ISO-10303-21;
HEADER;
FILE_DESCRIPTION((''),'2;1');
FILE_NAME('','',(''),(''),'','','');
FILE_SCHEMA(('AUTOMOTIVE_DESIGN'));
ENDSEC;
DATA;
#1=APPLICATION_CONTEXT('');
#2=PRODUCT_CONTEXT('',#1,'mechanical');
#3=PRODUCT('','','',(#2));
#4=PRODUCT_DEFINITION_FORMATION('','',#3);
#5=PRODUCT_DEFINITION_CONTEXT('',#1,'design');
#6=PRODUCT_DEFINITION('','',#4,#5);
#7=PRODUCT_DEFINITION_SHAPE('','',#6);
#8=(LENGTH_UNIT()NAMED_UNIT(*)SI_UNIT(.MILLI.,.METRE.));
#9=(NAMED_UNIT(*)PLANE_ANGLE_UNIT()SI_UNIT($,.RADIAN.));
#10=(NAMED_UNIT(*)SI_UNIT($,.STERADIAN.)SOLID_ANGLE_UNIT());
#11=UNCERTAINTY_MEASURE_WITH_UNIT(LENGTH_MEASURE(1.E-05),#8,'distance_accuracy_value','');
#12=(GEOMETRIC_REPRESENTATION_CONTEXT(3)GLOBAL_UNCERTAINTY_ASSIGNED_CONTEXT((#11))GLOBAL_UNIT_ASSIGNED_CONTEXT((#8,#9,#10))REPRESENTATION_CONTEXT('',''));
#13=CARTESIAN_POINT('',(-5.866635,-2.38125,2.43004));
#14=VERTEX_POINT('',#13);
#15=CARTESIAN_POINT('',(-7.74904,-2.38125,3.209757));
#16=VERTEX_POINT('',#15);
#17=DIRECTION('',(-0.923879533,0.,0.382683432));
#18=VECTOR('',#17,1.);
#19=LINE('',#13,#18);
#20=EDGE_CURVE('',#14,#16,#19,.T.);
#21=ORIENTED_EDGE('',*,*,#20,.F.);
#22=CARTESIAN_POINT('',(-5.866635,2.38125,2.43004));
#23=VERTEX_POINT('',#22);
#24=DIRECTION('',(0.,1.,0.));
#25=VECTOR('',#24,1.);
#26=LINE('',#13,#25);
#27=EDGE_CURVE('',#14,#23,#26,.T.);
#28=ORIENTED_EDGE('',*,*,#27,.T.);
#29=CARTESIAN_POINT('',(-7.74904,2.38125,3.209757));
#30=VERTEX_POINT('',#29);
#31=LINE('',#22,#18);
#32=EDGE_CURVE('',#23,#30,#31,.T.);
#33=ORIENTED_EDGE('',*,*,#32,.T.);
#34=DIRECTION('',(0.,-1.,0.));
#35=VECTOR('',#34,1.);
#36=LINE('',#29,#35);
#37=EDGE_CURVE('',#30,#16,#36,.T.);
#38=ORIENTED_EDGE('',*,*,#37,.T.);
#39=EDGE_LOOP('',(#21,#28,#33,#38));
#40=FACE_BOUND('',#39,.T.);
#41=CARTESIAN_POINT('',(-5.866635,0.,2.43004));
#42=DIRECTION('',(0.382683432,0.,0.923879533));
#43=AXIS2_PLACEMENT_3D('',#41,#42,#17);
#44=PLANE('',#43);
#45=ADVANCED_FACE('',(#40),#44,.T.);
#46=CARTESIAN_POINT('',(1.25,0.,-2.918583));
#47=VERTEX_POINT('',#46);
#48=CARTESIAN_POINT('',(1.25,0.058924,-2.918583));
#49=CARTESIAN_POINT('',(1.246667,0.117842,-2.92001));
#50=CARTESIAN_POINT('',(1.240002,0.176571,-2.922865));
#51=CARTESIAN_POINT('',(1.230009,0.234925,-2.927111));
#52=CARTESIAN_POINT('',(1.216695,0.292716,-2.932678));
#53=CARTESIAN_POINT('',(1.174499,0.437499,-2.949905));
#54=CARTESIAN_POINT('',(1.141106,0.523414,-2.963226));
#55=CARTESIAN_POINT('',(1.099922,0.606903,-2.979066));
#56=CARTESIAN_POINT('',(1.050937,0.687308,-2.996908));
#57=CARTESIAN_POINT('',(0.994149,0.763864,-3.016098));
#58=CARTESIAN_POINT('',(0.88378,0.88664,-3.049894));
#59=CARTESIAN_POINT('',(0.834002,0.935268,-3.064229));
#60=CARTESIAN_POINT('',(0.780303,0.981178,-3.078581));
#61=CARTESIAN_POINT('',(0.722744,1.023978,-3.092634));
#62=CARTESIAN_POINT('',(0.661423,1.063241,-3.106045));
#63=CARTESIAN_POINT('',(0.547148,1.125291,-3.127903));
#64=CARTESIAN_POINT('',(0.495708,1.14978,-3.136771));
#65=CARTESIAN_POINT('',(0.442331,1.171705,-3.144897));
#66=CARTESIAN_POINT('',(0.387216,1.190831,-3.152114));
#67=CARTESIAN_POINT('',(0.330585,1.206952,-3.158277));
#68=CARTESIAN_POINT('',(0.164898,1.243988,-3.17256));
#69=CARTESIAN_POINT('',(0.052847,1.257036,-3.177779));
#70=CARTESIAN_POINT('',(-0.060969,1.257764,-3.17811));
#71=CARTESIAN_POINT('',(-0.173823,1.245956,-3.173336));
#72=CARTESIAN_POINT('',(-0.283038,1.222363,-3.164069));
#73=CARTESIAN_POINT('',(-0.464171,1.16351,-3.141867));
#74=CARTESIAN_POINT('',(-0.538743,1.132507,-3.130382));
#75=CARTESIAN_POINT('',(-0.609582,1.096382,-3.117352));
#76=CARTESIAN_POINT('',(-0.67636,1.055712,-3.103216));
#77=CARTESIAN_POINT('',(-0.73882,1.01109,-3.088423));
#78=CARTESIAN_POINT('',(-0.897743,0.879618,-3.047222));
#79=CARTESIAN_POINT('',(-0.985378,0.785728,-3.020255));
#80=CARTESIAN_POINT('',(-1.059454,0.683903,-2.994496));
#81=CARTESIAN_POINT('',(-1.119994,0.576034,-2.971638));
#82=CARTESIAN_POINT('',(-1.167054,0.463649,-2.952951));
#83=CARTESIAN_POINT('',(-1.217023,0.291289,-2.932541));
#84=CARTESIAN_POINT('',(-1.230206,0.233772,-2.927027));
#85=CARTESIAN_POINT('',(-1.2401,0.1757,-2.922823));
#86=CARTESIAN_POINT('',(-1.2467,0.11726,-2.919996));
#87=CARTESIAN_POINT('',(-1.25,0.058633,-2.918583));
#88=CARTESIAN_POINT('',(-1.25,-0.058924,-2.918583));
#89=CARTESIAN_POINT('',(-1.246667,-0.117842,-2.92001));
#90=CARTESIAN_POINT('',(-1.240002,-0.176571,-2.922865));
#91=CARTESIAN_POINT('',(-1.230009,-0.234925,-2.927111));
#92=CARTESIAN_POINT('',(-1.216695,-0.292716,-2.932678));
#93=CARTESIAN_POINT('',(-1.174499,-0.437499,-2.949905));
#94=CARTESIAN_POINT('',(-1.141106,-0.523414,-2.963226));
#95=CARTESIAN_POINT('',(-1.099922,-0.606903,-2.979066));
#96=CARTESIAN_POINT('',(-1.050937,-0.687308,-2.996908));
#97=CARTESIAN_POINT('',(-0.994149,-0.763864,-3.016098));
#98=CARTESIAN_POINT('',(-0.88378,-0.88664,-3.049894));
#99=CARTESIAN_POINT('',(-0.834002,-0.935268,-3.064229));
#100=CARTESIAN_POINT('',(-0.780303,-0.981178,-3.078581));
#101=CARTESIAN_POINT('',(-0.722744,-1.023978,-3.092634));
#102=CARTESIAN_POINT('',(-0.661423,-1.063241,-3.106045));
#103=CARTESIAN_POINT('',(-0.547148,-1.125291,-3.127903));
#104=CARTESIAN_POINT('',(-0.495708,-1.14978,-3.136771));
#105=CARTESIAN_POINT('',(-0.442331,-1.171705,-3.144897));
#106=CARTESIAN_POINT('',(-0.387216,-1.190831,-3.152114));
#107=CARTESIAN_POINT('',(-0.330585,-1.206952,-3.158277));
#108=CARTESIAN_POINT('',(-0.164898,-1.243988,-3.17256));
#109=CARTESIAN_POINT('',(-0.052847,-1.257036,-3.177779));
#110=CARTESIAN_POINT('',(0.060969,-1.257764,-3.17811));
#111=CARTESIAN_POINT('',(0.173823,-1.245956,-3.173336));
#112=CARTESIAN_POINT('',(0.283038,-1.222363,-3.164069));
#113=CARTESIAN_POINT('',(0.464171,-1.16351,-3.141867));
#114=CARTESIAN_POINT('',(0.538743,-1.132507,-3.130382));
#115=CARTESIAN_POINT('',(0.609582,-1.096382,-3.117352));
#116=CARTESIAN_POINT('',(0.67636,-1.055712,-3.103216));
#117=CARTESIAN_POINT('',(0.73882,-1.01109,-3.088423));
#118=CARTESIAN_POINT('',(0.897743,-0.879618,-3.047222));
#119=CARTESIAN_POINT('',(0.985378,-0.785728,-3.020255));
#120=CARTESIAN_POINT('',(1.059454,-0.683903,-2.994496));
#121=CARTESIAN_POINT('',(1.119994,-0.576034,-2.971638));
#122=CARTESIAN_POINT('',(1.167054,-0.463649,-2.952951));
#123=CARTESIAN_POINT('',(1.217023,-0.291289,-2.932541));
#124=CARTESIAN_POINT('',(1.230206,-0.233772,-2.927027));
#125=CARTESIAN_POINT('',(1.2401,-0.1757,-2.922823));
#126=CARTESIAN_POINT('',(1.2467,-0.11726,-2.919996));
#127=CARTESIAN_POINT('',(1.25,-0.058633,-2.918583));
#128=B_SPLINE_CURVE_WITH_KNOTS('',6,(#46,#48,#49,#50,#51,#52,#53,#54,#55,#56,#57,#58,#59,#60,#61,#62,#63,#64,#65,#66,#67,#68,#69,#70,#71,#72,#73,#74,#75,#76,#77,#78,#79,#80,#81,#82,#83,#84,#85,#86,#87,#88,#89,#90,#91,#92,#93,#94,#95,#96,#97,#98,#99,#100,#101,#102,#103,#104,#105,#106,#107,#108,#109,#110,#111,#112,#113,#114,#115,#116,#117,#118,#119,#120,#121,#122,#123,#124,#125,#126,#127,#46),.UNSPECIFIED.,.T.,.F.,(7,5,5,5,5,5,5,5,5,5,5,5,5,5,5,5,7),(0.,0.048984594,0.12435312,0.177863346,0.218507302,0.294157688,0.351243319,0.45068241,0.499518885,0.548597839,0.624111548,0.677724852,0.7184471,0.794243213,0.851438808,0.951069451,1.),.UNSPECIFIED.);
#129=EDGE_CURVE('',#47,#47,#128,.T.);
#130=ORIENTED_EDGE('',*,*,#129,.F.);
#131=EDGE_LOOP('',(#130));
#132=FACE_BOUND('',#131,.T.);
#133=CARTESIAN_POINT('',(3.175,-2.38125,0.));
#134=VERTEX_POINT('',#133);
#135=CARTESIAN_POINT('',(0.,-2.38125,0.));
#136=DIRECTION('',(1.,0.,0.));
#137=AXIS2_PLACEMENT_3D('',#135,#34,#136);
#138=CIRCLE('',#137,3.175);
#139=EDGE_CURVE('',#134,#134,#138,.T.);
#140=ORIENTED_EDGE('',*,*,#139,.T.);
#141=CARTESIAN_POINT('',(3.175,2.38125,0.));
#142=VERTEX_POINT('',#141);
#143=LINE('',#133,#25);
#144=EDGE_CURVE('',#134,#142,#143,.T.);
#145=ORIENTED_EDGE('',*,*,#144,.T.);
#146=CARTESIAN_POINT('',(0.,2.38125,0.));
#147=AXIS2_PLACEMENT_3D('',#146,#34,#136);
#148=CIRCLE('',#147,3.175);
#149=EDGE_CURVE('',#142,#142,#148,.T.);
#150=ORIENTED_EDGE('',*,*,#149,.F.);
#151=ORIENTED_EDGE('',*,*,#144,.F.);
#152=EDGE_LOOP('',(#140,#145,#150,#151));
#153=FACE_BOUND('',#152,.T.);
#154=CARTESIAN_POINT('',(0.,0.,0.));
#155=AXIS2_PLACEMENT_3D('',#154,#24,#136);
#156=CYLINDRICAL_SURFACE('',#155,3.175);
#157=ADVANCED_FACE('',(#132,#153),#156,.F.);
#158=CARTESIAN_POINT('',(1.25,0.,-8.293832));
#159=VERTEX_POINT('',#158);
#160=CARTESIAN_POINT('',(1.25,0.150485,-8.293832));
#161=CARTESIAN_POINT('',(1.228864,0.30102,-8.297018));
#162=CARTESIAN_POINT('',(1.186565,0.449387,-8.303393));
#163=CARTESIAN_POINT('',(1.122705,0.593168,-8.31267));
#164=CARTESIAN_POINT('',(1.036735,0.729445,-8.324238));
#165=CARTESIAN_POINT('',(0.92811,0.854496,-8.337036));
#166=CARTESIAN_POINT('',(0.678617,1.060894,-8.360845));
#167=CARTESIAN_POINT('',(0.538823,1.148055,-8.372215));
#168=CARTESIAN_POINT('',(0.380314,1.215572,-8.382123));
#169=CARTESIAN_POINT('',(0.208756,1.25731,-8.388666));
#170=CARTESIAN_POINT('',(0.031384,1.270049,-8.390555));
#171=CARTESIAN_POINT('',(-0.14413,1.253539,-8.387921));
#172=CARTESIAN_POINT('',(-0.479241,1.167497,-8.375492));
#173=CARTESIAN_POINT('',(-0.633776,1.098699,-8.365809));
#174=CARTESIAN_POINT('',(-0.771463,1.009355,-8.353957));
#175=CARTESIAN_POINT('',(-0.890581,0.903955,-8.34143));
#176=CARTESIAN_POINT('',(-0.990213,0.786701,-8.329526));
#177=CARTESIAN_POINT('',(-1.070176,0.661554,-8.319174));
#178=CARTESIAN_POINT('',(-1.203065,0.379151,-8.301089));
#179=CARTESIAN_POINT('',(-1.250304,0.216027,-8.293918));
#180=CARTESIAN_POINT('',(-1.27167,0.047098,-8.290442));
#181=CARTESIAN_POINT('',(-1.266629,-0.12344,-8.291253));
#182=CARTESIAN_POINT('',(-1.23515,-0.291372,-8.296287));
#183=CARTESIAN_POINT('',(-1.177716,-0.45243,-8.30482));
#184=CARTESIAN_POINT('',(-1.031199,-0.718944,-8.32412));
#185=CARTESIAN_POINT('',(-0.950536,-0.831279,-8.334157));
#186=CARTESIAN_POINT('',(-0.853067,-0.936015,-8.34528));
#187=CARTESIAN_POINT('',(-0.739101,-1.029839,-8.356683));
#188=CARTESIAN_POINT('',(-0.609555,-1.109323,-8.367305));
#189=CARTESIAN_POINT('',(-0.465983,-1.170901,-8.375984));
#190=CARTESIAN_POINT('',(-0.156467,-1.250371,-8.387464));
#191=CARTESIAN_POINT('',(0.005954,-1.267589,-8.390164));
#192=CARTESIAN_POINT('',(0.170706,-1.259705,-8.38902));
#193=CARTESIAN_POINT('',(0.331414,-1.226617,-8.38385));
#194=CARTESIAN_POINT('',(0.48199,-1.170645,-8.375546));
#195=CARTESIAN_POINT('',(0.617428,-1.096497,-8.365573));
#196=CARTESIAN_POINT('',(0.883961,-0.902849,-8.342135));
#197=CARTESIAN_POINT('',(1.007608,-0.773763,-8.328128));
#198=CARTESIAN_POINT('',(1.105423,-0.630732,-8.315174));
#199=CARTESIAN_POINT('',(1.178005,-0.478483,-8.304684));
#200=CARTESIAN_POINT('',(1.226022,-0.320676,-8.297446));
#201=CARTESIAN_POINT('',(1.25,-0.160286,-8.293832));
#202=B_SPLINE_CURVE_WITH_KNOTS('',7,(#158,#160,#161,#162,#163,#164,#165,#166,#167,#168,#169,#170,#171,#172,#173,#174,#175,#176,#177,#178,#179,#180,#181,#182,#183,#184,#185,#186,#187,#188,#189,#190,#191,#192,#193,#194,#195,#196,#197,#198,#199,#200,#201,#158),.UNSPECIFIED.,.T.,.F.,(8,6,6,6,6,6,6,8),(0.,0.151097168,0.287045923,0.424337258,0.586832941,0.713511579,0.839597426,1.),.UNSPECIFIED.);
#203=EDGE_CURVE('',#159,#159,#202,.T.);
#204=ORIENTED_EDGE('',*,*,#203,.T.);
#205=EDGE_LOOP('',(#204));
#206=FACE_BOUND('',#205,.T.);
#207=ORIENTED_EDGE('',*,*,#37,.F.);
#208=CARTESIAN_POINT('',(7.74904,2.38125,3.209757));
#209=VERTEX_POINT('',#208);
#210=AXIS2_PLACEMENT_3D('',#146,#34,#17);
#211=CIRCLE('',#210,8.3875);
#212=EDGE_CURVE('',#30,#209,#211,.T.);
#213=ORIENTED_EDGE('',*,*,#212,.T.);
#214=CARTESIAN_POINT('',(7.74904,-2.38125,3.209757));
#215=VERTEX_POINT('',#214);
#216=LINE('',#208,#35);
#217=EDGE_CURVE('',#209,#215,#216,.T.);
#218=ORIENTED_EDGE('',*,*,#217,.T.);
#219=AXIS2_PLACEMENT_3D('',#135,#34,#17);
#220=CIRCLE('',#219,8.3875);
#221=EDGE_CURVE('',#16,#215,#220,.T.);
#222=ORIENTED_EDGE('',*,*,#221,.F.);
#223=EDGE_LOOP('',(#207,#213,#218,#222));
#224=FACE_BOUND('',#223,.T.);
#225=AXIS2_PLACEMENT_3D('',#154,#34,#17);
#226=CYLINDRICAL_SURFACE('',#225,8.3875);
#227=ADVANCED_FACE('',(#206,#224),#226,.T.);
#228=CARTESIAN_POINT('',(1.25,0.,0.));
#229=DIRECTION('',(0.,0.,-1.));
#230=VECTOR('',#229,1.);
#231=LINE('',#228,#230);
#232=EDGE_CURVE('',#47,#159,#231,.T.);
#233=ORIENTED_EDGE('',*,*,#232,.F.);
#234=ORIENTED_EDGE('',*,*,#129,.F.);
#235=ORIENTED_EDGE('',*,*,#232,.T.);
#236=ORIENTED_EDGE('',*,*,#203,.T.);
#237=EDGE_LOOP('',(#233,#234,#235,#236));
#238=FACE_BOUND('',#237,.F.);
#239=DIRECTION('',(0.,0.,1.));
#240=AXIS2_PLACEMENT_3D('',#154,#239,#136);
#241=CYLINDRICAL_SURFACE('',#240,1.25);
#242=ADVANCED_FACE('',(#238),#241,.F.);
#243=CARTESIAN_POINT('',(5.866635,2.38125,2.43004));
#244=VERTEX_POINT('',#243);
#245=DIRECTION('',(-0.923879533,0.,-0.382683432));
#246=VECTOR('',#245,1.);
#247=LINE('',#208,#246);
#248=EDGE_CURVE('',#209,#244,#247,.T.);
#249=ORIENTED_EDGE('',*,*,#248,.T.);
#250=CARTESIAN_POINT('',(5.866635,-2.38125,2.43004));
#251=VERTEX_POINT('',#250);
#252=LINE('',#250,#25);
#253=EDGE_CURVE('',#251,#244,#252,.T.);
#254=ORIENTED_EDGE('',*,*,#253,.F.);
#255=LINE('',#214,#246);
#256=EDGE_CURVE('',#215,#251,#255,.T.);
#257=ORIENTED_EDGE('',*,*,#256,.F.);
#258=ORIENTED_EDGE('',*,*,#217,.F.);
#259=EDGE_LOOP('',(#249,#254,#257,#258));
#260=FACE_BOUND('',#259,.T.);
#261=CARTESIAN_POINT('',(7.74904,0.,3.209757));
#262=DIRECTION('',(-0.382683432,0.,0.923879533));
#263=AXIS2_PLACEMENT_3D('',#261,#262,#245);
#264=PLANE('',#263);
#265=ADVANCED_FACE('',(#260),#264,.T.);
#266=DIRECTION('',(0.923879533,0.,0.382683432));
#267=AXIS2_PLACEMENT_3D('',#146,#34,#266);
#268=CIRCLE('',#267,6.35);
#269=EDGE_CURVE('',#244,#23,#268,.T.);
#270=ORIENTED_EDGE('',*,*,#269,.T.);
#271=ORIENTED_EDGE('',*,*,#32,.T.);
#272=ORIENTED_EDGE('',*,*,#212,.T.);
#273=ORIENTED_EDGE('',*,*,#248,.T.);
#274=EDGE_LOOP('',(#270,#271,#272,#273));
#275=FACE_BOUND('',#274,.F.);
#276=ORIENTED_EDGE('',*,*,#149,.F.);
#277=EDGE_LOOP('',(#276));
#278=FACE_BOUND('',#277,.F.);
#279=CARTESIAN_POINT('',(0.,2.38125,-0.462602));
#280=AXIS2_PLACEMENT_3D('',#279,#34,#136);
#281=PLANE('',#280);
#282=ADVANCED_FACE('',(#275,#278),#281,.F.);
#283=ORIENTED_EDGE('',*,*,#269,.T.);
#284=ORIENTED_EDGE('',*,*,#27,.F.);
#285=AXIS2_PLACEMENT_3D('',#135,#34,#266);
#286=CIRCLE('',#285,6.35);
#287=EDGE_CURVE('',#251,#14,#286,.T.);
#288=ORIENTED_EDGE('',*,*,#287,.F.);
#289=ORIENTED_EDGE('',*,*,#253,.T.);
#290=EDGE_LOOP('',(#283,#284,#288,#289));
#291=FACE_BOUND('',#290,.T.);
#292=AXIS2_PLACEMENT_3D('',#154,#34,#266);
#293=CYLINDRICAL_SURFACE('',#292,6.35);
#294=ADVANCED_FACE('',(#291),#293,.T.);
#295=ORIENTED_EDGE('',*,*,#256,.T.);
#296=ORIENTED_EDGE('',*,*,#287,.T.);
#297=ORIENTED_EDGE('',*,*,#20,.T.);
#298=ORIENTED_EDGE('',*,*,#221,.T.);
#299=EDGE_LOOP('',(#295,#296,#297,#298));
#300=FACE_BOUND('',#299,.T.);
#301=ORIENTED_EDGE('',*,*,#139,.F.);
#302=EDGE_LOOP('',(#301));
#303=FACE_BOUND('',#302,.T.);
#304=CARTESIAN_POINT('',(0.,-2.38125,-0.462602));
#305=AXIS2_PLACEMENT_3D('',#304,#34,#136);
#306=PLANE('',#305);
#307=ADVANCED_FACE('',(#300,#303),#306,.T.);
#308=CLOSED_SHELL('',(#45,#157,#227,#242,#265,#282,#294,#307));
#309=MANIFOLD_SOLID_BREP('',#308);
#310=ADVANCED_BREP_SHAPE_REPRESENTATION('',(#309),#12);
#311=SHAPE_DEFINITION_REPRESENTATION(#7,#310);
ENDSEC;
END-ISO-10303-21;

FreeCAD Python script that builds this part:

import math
import FreeCAD as App
import Part
import Sketcher
from FreeCAD import Vector
Q = App.Units.Quantity

doc = App.newDocument("Part")
body = doc.addObject("PartDesign::Body", "Body")

# Sketch on XZ plane
sketch1 = body.newObject("Sketcher::SketchObject", "Sketch")
sketch1.AttachmentSupport = (doc.getObject("XZ_Plane"), [""])
sketch1.MapMode = "FlatFace"
sketch1.addGeometry(Part.LineSegment(Vector(-5.866635, 2.43004, 0), Vector(-7.74904, 3.209757, 0)), False)
sketch1.addGeometry(Part.ArcOfCircle(Part.Circle(Vector(0, 0, 0), Vector(0, 0, 1), 8.3875), math.radians(157.5), math.radians(382.5)), False)
sketch1.addGeometry(Part.LineSegment(Vector(7.74904, 3.209757, 0), Vector(5.866635, 2.43004, 0)), False)
sketch1.addGeometry(Part.ArcOfCircle(Part.Circle(Vector(0, 0, 0), Vector(0, 0, 1), 6.35), math.radians(22.5), math.radians(157.5)), False)
sketch1.addGeometry(Part.Circle(Vector(0, 0, 0), Vector(0, 0, 1), 3.175), False)
sketch1.addConstraint(Sketcher.Constraint("Coincident", 0, 2, 1, 1))
sketch1.addConstraint(Sketcher.Constraint("Coincident", 1, 2, 2, 1))
sketch1.addConstraint(Sketcher.Constraint("Coincident", 2, 2, 3, 1))
sketch1.addConstraint(Sketcher.Constraint("Coincident", 3, 2, 0, 1))
sketch1.addConstraint(Sketcher.Constraint("Coincident", 1, 3, -1, 1))
sketch1.addConstraint(Sketcher.Constraint("Coincident", 3, 3, -1, 1))
sketch1.addConstraint(Sketcher.Constraint("Coincident", 4, 3, -1, 1))
sketch1.addConstraint(Sketcher.Constraint("Horizontal", 0, 2, 1, 2))
sketch1.addConstraint(Sketcher.Constraint("Horizontal", 2, 2, 3, 2))
sketch1.addConstraint(Sketcher.Constraint("Diameter", 4, Q("0.25 in")))
sketch1.addConstraint(Sketcher.Constraint("Radius", 3, Q("0.25 in")))
sketch1.addConstraint(Sketcher.Constraint("Angle", 0, Q("157.5 deg")))
sketch1.addConstraint(Sketcher.Constraint("Radius", 1, 8.3875))
sketch1.addConstraint(Sketcher.Constraint("DistanceX", 0, 2, -1, 1, 7.74904))
pad1 = body.newObject("PartDesign::Pad", "Pad")
pad1.Profile = sketch1
pad1.Length = Q("0.1875 in")
pad1.Midplane = True

# Sketch on XY plane
sketch2 = body.newObject("Sketcher::SketchObject", "Sketch001")
sketch2.AttachmentSupport = (doc.getObject("XY_Plane"), [""])
sketch2.MapMode = "FlatFace"
sketch2.addGeometry(Part.Circle(Vector(0, 0, 0), Vector(0, 0, 1), 1.25), False)
sketch2.addConstraint(Sketcher.Constraint("Coincident", 0, 3, -1, 1))
sketch2.addConstraint(Sketcher.Constraint("Diameter", 0, 2.5))
pocket1 = body.newObject("PartDesign::Pocket", "Pocket")
pocket1.Profile = sketch2
pocket1.Type = "ThroughAll"

doc.recompute()
